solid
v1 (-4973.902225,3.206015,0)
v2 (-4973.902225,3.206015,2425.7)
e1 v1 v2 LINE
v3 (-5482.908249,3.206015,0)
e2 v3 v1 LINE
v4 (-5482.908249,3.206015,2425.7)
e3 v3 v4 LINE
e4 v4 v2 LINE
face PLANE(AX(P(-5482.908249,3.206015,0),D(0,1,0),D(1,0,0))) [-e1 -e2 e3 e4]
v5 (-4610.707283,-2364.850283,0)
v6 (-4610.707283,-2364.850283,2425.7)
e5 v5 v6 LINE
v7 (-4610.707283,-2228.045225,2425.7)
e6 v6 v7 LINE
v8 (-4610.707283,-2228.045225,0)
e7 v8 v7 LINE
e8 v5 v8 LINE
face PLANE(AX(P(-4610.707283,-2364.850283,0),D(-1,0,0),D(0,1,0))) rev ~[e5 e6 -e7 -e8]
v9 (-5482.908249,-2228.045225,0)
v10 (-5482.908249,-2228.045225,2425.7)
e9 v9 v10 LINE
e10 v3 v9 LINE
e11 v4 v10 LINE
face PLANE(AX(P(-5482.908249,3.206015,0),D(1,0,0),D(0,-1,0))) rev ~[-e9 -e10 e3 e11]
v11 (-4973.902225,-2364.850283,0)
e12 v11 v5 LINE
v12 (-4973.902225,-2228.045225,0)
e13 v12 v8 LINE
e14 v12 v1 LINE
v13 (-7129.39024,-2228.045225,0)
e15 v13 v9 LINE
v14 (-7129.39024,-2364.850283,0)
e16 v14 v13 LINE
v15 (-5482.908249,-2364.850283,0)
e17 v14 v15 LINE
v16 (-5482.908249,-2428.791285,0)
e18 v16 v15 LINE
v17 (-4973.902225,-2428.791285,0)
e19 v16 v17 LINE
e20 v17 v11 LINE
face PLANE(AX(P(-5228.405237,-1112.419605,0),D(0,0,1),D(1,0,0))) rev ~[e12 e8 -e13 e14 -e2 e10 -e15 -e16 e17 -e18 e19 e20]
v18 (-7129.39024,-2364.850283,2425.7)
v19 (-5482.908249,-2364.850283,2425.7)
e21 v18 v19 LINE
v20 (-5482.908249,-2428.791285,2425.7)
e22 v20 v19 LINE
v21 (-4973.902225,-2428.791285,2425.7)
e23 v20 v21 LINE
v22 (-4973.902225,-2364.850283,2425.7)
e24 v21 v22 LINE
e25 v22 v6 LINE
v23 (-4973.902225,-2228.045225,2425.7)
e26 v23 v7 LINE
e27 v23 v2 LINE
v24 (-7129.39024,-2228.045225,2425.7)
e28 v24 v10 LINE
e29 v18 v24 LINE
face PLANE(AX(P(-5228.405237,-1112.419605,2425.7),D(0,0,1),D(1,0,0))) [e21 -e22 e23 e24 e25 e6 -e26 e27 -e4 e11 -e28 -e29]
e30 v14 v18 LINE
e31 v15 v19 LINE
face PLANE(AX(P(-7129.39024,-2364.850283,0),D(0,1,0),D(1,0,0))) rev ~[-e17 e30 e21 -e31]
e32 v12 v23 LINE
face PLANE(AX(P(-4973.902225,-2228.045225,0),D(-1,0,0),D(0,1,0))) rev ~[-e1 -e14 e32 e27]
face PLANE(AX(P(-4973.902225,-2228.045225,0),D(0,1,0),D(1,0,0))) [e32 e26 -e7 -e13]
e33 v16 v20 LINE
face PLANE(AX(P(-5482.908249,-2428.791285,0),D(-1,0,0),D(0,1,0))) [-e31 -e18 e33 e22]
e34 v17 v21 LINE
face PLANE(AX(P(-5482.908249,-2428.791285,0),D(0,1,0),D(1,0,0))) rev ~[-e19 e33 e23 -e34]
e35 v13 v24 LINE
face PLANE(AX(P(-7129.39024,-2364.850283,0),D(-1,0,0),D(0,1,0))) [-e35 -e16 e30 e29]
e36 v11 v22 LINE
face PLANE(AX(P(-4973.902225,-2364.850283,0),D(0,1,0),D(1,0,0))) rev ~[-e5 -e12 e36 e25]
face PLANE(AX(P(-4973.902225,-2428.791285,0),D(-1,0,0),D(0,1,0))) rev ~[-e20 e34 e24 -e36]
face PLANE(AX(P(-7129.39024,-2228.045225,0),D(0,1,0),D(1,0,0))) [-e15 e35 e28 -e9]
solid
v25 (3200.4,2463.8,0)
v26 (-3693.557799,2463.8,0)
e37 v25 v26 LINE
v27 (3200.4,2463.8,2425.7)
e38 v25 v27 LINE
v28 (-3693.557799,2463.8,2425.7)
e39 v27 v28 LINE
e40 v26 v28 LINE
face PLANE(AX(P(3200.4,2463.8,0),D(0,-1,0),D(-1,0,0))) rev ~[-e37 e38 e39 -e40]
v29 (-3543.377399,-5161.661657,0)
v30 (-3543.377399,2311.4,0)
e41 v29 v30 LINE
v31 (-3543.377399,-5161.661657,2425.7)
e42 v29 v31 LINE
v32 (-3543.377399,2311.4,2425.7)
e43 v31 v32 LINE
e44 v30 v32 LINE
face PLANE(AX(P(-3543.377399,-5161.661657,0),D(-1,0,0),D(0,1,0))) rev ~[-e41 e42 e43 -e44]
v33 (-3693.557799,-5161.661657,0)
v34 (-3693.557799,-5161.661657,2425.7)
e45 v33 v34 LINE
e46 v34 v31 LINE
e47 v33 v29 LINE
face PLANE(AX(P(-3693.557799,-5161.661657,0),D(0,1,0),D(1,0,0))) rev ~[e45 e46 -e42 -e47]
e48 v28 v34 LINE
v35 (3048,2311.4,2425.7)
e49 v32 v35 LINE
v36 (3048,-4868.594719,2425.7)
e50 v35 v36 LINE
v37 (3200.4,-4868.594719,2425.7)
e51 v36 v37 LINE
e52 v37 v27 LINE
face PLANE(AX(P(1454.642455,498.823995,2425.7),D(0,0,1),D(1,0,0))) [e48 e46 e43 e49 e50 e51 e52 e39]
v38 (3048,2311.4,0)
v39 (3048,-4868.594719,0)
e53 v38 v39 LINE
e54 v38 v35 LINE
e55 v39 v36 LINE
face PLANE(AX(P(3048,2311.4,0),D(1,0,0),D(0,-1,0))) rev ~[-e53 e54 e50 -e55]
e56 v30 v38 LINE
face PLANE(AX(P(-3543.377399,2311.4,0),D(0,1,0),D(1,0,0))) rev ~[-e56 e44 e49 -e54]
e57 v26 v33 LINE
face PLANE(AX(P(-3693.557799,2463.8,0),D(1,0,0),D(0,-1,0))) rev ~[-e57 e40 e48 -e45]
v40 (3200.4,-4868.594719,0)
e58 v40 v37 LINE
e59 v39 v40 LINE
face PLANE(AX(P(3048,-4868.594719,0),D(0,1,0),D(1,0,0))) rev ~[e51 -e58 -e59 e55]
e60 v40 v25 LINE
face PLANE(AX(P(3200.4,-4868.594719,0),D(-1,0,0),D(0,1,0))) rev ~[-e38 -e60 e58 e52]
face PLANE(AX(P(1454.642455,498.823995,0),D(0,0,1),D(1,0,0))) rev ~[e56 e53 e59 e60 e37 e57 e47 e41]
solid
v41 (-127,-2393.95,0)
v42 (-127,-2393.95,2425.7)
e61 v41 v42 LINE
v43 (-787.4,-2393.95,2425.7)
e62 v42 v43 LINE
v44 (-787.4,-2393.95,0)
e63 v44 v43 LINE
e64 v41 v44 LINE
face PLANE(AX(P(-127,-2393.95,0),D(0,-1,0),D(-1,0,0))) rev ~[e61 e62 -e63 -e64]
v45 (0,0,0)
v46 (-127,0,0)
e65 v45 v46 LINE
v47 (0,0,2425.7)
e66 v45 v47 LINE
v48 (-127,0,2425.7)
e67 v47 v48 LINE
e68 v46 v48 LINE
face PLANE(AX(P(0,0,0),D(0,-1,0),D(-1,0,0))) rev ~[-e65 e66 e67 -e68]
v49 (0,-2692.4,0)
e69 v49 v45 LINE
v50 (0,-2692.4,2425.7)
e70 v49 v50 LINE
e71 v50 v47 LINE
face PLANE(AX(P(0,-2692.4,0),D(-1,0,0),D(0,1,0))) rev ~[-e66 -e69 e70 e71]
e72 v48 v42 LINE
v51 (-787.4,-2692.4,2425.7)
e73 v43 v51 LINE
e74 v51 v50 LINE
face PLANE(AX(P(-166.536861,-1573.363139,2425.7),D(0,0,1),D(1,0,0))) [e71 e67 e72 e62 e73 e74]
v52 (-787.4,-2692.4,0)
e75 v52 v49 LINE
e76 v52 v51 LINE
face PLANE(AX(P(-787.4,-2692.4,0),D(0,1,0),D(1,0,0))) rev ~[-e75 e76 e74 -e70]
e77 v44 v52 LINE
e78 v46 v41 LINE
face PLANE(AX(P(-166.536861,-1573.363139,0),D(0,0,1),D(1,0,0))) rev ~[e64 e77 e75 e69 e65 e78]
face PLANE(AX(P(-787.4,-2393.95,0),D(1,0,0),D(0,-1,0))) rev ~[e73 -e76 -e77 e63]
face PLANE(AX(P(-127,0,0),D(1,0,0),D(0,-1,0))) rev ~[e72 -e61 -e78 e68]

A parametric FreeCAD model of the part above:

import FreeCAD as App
import Part
import Sketcher
Q = App.Units.Quantity

doc = App.newDocument("Part")
body = doc.addObject("PartDesign::Body", "Body")

# Sketch on XY plane
sketch1 = body.newObject("Sketcher::SketchObject", "Sketch")
sketch1.AttachmentSupport = (doc.getObject("XY_Plane"), [""])
sketch1.MapMode = "FlatFace"
sketch1.addGeometry([
    Part.LineSegment(App.Vector(0, -2692.4, 0), App.Vector(0, 0, 0)),  # 0
    Part.LineSegment(App.Vector(0, 0, 0), App.Vector(-127, 0, 0)),  # 1
    Part.LineSegment(App.Vector(-127, 0, 0), App.Vector(-127, -2393.95, 0)),  # 2
    Part.LineSegment(App.Vector(-127, -2393.95, 0), App.Vector(-787.4, -2393.95, 0)),  # 3
    Part.LineSegment(App.Vector(-787.4, -2393.95, 0), App.Vector(-787.4, -2692.4, 0)),  # 4
    Part.LineSegment(App.Vector(-787.4, -2692.4, 0), App.Vector(0, -2692.4, 0)),  # 5
], False)
sketch1.addConstraint([
    Sketcher.Constraint("Coincident", 0, 2, 1, 1),
    Sketcher.Constraint("Coincident", 1, 2, 2, 1),
    Sketcher.Constraint("Coincident", 2, 2, 3, 1),
    Sketcher.Constraint("Coincident", 3, 2, 4, 1),
    Sketcher.Constraint("Coincident", 4, 2, 5, 1),
    Sketcher.Constraint("Coincident", 5, 2, 0, 1),
    Sketcher.Constraint("Vertical", 0),
    Sketcher.Constraint("Horizontal", 1),
    Sketcher.Constraint("Vertical", 2),
    Sketcher.Constraint("Horizontal", 3),
    Sketcher.Constraint("Vertical", 4),
    Sketcher.Constraint("Horizontal", 5),
    Sketcher.Constraint("Coincident", 0, 2, -1, 1),
    Sketcher.Constraint("DistanceX", 1, 2, 1, 1, Q("5 in")),
    Sketcher.Constraint("DistanceX", 3, 2, 3, 1, Q("26 in")),
    Sketcher.Constraint("DistanceY", 0, 1, 0, 2, Q("106 in")),
    Sketcher.Constraint("DistanceY", 2, 2, 2, 1, Q("94.25 in")),
])
pad1 = body.newObject("PartDesign::Pad", "Pad")
pad1.Profile = sketch1
pad1.Length = Q("95.5 in")
body2 = doc.addObject("PartDesign::Body", "Body001")

# Sketch on XY plane
sketch2 = body2.newObject("Sketcher::SketchObject", "Sketch001")
sketch2.AttachmentSupport = (doc.getObject("XY_Plane001"), [""])
sketch2.MapMode = "FlatFace"
sketch2.addGeometry([
    Part.LineSegment(App.Vector(-5482.908249, 3.206015, 0), App.Vector(-5482.908249, -2228.045225, 0)),  # 0
    Part.LineSegment(App.Vector(-5482.908249, -2228.045225, 0), App.Vector(-7129.39024, -2228.045225, 0)),  # 1
    Part.LineSegment(App.Vector(-7129.39024, -2228.045225, 0), App.Vector(-7129.39024, -2364.850283, 0)),  # 2
    Part.LineSegment(App.Vector(-7129.39024, -2364.850283, 0), App.Vector(-5482.908249, -2364.850283, 0)),  # 3
    Part.LineSegment(App.Vector(-5482.908249, -2364.850283, 0), App.Vector(-5482.908249, -2428.791285, 0)),  # 4
    Part.LineSegment(App.Vector(-5482.908249, -2428.791285, 0), App.Vector(-4973.902225, -2428.791285, 0)),  # 5
    Part.LineSegment(App.Vector(-4973.902225, -2428.791285, 0), App.Vector(-4973.902225, -2364.850283, 0)),  # 6
    Part.LineSegment(App.Vector(-4973.902225, -2364.850283, 0), App.Vector(-4610.707283, -2364.850283, 0)),  # 7
    Part.LineSegment(App.Vector(-4610.707283, -2364.850283, 0), App.Vector(-4610.707283, -2228.045225, 0)),  # 8
    Part.LineSegment(App.Vector(-4610.707283, -2228.045225, 0), App.Vector(-4973.902225, -2228.045225, 0)),  # 9
    Part.LineSegment(App.Vector(-4973.902225, -2228.045225, 0), App.Vector(-4973.902225, 3.206015, 0)),  # 10
    Part.LineSegment(App.Vector(-4973.902225, 3.206015, 0), App.Vector(-5482.908249, 3.206015, 0)),  # 11
], False)
sketch2.addConstraint([
    Sketcher.Constraint("Coincident", 0, 2, 1, 1),
    Sketcher.Constraint("Coincident", 1, 2, 2, 1),
    Sketcher.Constraint("Coincident", 2, 2, 3, 1),
    Sketcher.Constraint("Coincident", 3, 2, 4, 1),
    Sketcher.Constraint("Coincident", 4, 2, 5, 1),
    Sketcher.Constraint("Coincident", 5, 2, 6, 1),
    Sketcher.Constraint("Coincident", 6, 2, 7, 1),
    Sketcher.Constraint("Coincident", 7, 2, 8, 1),
    Sketcher.Constraint("Coincident", 8, 2, 9, 1),
    Sketcher.Constraint("Coincident", 9, 2, 10, 1),
    Sketcher.Constraint("Coincident", 10, 2, 11, 1),
    Sketcher.Constraint("Coincident", 11, 2, 0, 1),
    Sketcher.Constraint("Vertical", 0),
    Sketcher.Constraint("Horizontal", 1),
    Sketcher.Constraint("Vertical", 2),
    Sketcher.Constraint("Horizontal", 3),
    Sketcher.Constraint("Vertical", 4),
    Sketcher.Constraint("Horizontal", 5),
    Sketcher.Constraint("Vertical", 6),
    Sketcher.Constraint("Horizontal", 7),
    Sketcher.Constraint("Vertical", 8),
    Sketcher.Constraint("Horizontal", 9),
    Sketcher.Constraint("Vertical", 10),
    Sketcher.Constraint("Horizontal", 11),
    Sketcher.Constraint("Horizontal", 3, 2, 6, 2),
    Sketcher.Constraint("Horizontal", 1, 2, 8, 2),
    Sketcher.Constraint("Vertical", 0, 2, 3, 2),
    Sketcher.Constraint("Vertical", 6, 2, 9, 2),
    Sketcher.Constraint("DistanceY", 4, 2, 4, 1, Q("63.941002 mm")),
    Sketcher.Constraint("DistanceX", 1, 2, 1, 1, Q("1646.481991 mm")),
    Sketcher.Constraint("DistanceY", 0, 2, 0, 1, Q("2231.25124 mm")),
    Sketcher.Constraint("DistanceX", 5, 1, 5, 2, Q("509.006023 mm")),
    Sketcher.Constraint("DistanceX", 7, 1, 7, 2, Q("363.194942 mm")),
    Sketcher.Constraint("DistanceY", 2, 2, 2, 1, Q("136.805058 mm")),
    Sketcher.Constraint("DistanceX", 0, 2, -1, 1, Q("5482.908249 mm")),
    Sketcher.Constraint("DistanceY", 0, 2, -1, 1, Q("2228.045225 mm")),
])
pad2 = body2.newObject("PartDesign::Pad", "Pad001")
pad2.Profile = sketch2
pad2.Length = Q("95.5 in")
body3 = doc.addObject("PartDesign::Body", "Body002")

# Sketch on XY plane
sketch3 = body3.newObject("Sketcher::SketchObject", "Sketch002")
sketch3.AttachmentSupport = (doc.getObject("XY_Plane002"), [""])
sketch3.MapMode = "FlatFace"
sketch3.addGeometry([
    Part.LineSegment(App.Vector(3048, 2311.4, 0), App.Vector(3048, -4868.594719, 0)),  # 0
    Part.LineSegment(App.Vector(3048, -4868.594719, 0), App.Vector(3200.4, -4868.594719, 0)),  # 1
    Part.LineSegment(App.Vector(3200.4, -4868.594719, 0), App.Vector(3200.4, 2463.8, 0)),  # 2
    Part.LineSegment(App.Vector(3200.4, 2463.8, 0), App.Vector(-3693.557799, 2463.8, 0)),  # 3
    Part.LineSegment(App.Vector(-3693.557799, 2463.8, 0), App.Vector(-3693.557799, -5161.661657, 0)),  # 4
    Part.LineSegment(App.Vector(-3693.557799, -5161.661657, 0), App.Vector(-3543.377399, -5161.661657, 0)),  # 5
    Part.LineSegment(App.Vector(-3543.377399, -5161.661657, 0), App.Vector(-3543.377399, 2311.4, 0)),  # 6
    Part.LineSegment(App.Vector(-3543.377399, 2311.4, 0), App.Vector(3048, 2311.4, 0)),  # 7
], False)
sketch3.addConstraint([
    Sketcher.Constraint("Coincident", 0, 2, 1, 1),
    Sketcher.Constraint("Coincident", 1, 2, 2, 1),
    Sketcher.Constraint("Coincident", 2, 2, 3, 1),
    Sketcher.Constraint("Coincident", 3, 2, 4, 1),
    Sketcher.Constraint("Coincident", 4, 2, 5, 1),
    Sketcher.Constraint("Coincident", 5, 2, 6, 1),
    Sketcher.Constraint("Coincident", 6, 2, 7, 1),
    Sketcher.Constraint("Coincident", 7, 2, 0, 1),
    Sketcher.Constraint("Vertical", 0),
    Sketcher.Constraint("Horizontal", 1),
    Sketcher.Constraint("Vertical", 2),
    Sketcher.Constraint("Horizontal", 3),
    Sketcher.Constraint("Vertical", 4),
    Sketcher.Constraint("Horizontal", 5),
    Sketcher.Constraint("Vertical", 6),
    Sketcher.Constraint("Horizontal", 7),
    Sketcher.Constraint("DistanceX", 1, 1, 1, 2, Q("6 in")),
    Sketcher.Constraint("DistanceX", -1, 1, 0, 2, Q("120 in")),
    Sketcher.Constraint("DistanceY", -1, 1, 2, 2, Q("97 in")),
    Sketcher.Constraint("DistanceY", -1, 1, 6, 2, Q("91 in")),
    Sketcher.Constraint("DistanceX", 3, 2, 3, 1, Q("6893.957799 mm")),
    Sketcher.Constraint("DistanceX", 5, 1, 5, 2, Q("150.180399 mm")),
    Sketcher.Constraint("DistanceY", 0, 2, 0, 1, Q("7179.994719 mm")),
    Sketcher.Constraint("DistanceY", 4, 2, 4, 1, Q("7625.461657 mm")),
])
pad3 = body3.newObject("PartDesign::Pad", "Pad002")
pad3.Profile = sketch3
pad3.Length = Q("95.5 in")

doc.recompute()
